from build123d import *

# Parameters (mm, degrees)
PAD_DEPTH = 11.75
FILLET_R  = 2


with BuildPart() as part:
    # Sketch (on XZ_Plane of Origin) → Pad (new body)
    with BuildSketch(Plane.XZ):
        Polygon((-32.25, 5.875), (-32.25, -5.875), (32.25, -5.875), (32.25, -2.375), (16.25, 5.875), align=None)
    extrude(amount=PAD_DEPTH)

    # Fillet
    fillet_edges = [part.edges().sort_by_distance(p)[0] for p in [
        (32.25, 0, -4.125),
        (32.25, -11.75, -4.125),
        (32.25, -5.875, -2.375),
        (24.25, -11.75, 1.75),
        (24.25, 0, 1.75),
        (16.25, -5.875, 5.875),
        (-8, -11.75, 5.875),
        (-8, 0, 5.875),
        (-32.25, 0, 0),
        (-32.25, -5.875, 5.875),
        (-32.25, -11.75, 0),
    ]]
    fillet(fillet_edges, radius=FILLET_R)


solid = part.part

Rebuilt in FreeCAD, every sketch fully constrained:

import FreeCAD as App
import Part
import Sketcher
from FreeCAD import Vector


def edges_at(feature, points):
    """Names of the edges that pass closest to the given points."""
    edges = feature.Shape.Edges
    near = lambda p: min(range(len(edges)), key=lambda i: edges[i].distToShape(Part.Vertex(*p))[0])
    return sorted({f"Edge{near(p) + 1}" for p in points})


def add_polygon(sketch, points):
    """Adds a closed chain of lines whose ends are joined by coincident constraints."""
    first, n = sketch.GeometryCount, len(points)
    for a, b in zip(points, points[1:] + points[:1]):
        sketch.addGeometry(Part.LineSegment(App.Vector(*a, 0), App.Vector(*b, 0)), False)
    for i in range(n):
        sketch.addConstraint(Sketcher.Constraint("Coincident", first + i, 2, first + (i + 1) % n, 1))

doc = App.newDocument("Part")
body = doc.addObject("PartDesign::Body", "Body")

# Sketch on XZ plane
sketch1 = body.newObject("Sketcher::SketchObject", "Sketch")
sketch1.AttachmentSupport = (doc.getObject("XZ_Plane"), [""])
sketch1.MapMode = "FlatFace"
add_polygon(sketch1, [(-32.2, 5.9), (-32.2, -5.9), (32.2, -5.9), (32.2, -2.4), (16.2, 5.9)])  # lines 0-4
sketch1.addConstraint([
    Sketcher.Constraint("Vertical", 0),
    Sketcher.Constraint("Horizontal", 1),
    Sketcher.Constraint("Vertical", 2),
    Sketcher.Constraint("Horizontal", 4),
    Sketcher.Constraint("Symmetric", 1, 2, 4, 2, -1, 1),
    Sketcher.Constraint("DistanceX", 1, 1, 1, 2, 64.5),
    Sketcher.Constraint("DistanceX", 4, 2, 4, 1, 48.5),
    Sketcher.Constraint("DistanceY", 2, 1, 2, 2, 3.5),
    Sketcher.Constraint("DistanceY", 0, 2, 0, 1, 11.75),
])
pad1 = body.newObject("PartDesign::Pad", "Pad")
pad1.Profile = sketch1
pad1.Length = 11.75
doc.recompute()

fillet = body.newObject("PartDesign::Fillet", "Fillet")
fillet.Base = (pad1, edges_at(pad1, [
    (32.25, 0, -4.125),
    (32.25, -11.75, -4.125),
    (32.25, -5.875, -2.375),
    (24.25, -11.75, 1.75),
    (24.25, 0, 1.75),
    (16.25, -5.875, 5.875),
    (-8, -11.75, 5.875),
    (-8, 0, 5.875),
    (-32.25, 0, 0),
    (-32.25, -5.875, 5.875),
    (-32.25, -11.75, 0),
]))
fillet.Radius = 2

doc.recompute()
